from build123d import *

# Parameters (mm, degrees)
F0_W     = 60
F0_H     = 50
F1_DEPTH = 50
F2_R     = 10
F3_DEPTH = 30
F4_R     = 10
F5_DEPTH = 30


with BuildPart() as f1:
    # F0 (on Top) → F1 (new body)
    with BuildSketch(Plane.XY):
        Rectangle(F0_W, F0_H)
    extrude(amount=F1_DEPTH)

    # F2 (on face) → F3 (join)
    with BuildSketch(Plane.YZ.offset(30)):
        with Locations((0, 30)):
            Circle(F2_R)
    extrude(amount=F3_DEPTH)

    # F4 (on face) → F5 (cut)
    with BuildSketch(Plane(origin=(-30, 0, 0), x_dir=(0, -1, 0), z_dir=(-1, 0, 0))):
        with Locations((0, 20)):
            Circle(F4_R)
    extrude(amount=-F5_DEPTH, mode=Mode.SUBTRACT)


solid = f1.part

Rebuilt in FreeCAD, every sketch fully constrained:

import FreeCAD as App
import Part
import Sketcher
from FreeCAD import Vector
Q = App.Units.Quantity


def add_polygon(sketch, points):
    """Adds a closed chain of lines whose ends are joined by coincident constraints."""
    first, n = sketch.GeometryCount, len(points)
    for a, b in zip(points, points[1:] + points[:1]):
        sketch.addGeometry(Part.LineSegment(App.Vector(*a, 0), App.Vector(*b, 0)), False)
    for i in range(n):
        sketch.addConstraint(Sketcher.Constraint("Coincident", first + i, 2, first + (i + 1) % n, 1))

doc = App.newDocument("Part")
body = doc.addObject("PartDesign::Body", "Body")

sketch1 = body.newObject("Sketcher::SketchObject", "Sketch")
sketch1.AttachmentSupport = (doc.getObject("XY_Plane"), [""])
sketch1.MapMode = "FlatFace"
add_polygon(sketch1, [(-30, 25), (-30, -25), (30, -25), (30, 25)])
sketch1.addConstraint([
    Sketcher.Constraint("Vertical", 0),
    Sketcher.Constraint("Horizontal", 1),
    Sketcher.Constraint("Vertical", 2),
    Sketcher.Constraint("Horizontal", 3),
    Sketcher.Constraint("Symmetric", 0, 2, 2, 2, -1, 1),
    Sketcher.Constraint("DistanceX", 1, 1, 1, 2, Q("60 mm")),
    Sketcher.Constraint("DistanceY", 0, 2, 0, 1, Q("50 mm")),
])
pad1 = body.newObject("PartDesign::Pad", "Pad")
pad1.Profile = sketch1
pad1.Length = 50

sketch2 = body.newObject("Sketcher::SketchObject", "Sketch001")
sketch2.AttachmentSupport = (doc.getObject("YZ_Plane"), [""])
sketch2.MapMode = "FlatFace"
sketch2.AttachmentOffset = App.Placement(Vector(0, 0, 30), App.Rotation())
sketch2.addGeometry(Part.Circle(Vector(0, 30, 0), Vector(0, 0, 1), 10), False)
sketch2.addConstraint([
    Sketcher.Constraint("PointOnObject", 0, 3, -2),
    Sketcher.Constraint("Diameter", 0, Q("20 mm")),
    Sketcher.Constraint("DistanceY", -1, 1, 0, 3, Q("30 mm")),
])
pad2 = body.newObject("PartDesign::Pad", "Pad001")
pad2.Profile = sketch2
pad2.Length = 30

sketch3 = body.newObject("Sketcher::SketchObject", "Sketch002")
sketch3.AttachmentSupport = (doc.getObject("YZ_Plane"), [""])
sketch3.MapMode = "FlatFace"
sketch3.AttachmentOffset = App.Placement(Vector(0, 0, -30), App.Rotation())
sketch3.addGeometry(Part.Circle(Vector(0, 20, 0), Vector(0, 0, 1), 10), False)
sketch3.addConstraint([
    Sketcher.Constraint("PointOnObject", 0, 3, -2),
    Sketcher.Constraint("Diameter", 0, Q("20 mm")),
    Sketcher.Constraint("DistanceY", -1, 1, 0, 3, Q("20 mm")),
])
pocket1 = body.newObject("PartDesign::Pocket", "Pocket")
pocket1.Profile = sketch3
pocket1.Length = 30
pocket1.Reversed = True

doc.recompute()
